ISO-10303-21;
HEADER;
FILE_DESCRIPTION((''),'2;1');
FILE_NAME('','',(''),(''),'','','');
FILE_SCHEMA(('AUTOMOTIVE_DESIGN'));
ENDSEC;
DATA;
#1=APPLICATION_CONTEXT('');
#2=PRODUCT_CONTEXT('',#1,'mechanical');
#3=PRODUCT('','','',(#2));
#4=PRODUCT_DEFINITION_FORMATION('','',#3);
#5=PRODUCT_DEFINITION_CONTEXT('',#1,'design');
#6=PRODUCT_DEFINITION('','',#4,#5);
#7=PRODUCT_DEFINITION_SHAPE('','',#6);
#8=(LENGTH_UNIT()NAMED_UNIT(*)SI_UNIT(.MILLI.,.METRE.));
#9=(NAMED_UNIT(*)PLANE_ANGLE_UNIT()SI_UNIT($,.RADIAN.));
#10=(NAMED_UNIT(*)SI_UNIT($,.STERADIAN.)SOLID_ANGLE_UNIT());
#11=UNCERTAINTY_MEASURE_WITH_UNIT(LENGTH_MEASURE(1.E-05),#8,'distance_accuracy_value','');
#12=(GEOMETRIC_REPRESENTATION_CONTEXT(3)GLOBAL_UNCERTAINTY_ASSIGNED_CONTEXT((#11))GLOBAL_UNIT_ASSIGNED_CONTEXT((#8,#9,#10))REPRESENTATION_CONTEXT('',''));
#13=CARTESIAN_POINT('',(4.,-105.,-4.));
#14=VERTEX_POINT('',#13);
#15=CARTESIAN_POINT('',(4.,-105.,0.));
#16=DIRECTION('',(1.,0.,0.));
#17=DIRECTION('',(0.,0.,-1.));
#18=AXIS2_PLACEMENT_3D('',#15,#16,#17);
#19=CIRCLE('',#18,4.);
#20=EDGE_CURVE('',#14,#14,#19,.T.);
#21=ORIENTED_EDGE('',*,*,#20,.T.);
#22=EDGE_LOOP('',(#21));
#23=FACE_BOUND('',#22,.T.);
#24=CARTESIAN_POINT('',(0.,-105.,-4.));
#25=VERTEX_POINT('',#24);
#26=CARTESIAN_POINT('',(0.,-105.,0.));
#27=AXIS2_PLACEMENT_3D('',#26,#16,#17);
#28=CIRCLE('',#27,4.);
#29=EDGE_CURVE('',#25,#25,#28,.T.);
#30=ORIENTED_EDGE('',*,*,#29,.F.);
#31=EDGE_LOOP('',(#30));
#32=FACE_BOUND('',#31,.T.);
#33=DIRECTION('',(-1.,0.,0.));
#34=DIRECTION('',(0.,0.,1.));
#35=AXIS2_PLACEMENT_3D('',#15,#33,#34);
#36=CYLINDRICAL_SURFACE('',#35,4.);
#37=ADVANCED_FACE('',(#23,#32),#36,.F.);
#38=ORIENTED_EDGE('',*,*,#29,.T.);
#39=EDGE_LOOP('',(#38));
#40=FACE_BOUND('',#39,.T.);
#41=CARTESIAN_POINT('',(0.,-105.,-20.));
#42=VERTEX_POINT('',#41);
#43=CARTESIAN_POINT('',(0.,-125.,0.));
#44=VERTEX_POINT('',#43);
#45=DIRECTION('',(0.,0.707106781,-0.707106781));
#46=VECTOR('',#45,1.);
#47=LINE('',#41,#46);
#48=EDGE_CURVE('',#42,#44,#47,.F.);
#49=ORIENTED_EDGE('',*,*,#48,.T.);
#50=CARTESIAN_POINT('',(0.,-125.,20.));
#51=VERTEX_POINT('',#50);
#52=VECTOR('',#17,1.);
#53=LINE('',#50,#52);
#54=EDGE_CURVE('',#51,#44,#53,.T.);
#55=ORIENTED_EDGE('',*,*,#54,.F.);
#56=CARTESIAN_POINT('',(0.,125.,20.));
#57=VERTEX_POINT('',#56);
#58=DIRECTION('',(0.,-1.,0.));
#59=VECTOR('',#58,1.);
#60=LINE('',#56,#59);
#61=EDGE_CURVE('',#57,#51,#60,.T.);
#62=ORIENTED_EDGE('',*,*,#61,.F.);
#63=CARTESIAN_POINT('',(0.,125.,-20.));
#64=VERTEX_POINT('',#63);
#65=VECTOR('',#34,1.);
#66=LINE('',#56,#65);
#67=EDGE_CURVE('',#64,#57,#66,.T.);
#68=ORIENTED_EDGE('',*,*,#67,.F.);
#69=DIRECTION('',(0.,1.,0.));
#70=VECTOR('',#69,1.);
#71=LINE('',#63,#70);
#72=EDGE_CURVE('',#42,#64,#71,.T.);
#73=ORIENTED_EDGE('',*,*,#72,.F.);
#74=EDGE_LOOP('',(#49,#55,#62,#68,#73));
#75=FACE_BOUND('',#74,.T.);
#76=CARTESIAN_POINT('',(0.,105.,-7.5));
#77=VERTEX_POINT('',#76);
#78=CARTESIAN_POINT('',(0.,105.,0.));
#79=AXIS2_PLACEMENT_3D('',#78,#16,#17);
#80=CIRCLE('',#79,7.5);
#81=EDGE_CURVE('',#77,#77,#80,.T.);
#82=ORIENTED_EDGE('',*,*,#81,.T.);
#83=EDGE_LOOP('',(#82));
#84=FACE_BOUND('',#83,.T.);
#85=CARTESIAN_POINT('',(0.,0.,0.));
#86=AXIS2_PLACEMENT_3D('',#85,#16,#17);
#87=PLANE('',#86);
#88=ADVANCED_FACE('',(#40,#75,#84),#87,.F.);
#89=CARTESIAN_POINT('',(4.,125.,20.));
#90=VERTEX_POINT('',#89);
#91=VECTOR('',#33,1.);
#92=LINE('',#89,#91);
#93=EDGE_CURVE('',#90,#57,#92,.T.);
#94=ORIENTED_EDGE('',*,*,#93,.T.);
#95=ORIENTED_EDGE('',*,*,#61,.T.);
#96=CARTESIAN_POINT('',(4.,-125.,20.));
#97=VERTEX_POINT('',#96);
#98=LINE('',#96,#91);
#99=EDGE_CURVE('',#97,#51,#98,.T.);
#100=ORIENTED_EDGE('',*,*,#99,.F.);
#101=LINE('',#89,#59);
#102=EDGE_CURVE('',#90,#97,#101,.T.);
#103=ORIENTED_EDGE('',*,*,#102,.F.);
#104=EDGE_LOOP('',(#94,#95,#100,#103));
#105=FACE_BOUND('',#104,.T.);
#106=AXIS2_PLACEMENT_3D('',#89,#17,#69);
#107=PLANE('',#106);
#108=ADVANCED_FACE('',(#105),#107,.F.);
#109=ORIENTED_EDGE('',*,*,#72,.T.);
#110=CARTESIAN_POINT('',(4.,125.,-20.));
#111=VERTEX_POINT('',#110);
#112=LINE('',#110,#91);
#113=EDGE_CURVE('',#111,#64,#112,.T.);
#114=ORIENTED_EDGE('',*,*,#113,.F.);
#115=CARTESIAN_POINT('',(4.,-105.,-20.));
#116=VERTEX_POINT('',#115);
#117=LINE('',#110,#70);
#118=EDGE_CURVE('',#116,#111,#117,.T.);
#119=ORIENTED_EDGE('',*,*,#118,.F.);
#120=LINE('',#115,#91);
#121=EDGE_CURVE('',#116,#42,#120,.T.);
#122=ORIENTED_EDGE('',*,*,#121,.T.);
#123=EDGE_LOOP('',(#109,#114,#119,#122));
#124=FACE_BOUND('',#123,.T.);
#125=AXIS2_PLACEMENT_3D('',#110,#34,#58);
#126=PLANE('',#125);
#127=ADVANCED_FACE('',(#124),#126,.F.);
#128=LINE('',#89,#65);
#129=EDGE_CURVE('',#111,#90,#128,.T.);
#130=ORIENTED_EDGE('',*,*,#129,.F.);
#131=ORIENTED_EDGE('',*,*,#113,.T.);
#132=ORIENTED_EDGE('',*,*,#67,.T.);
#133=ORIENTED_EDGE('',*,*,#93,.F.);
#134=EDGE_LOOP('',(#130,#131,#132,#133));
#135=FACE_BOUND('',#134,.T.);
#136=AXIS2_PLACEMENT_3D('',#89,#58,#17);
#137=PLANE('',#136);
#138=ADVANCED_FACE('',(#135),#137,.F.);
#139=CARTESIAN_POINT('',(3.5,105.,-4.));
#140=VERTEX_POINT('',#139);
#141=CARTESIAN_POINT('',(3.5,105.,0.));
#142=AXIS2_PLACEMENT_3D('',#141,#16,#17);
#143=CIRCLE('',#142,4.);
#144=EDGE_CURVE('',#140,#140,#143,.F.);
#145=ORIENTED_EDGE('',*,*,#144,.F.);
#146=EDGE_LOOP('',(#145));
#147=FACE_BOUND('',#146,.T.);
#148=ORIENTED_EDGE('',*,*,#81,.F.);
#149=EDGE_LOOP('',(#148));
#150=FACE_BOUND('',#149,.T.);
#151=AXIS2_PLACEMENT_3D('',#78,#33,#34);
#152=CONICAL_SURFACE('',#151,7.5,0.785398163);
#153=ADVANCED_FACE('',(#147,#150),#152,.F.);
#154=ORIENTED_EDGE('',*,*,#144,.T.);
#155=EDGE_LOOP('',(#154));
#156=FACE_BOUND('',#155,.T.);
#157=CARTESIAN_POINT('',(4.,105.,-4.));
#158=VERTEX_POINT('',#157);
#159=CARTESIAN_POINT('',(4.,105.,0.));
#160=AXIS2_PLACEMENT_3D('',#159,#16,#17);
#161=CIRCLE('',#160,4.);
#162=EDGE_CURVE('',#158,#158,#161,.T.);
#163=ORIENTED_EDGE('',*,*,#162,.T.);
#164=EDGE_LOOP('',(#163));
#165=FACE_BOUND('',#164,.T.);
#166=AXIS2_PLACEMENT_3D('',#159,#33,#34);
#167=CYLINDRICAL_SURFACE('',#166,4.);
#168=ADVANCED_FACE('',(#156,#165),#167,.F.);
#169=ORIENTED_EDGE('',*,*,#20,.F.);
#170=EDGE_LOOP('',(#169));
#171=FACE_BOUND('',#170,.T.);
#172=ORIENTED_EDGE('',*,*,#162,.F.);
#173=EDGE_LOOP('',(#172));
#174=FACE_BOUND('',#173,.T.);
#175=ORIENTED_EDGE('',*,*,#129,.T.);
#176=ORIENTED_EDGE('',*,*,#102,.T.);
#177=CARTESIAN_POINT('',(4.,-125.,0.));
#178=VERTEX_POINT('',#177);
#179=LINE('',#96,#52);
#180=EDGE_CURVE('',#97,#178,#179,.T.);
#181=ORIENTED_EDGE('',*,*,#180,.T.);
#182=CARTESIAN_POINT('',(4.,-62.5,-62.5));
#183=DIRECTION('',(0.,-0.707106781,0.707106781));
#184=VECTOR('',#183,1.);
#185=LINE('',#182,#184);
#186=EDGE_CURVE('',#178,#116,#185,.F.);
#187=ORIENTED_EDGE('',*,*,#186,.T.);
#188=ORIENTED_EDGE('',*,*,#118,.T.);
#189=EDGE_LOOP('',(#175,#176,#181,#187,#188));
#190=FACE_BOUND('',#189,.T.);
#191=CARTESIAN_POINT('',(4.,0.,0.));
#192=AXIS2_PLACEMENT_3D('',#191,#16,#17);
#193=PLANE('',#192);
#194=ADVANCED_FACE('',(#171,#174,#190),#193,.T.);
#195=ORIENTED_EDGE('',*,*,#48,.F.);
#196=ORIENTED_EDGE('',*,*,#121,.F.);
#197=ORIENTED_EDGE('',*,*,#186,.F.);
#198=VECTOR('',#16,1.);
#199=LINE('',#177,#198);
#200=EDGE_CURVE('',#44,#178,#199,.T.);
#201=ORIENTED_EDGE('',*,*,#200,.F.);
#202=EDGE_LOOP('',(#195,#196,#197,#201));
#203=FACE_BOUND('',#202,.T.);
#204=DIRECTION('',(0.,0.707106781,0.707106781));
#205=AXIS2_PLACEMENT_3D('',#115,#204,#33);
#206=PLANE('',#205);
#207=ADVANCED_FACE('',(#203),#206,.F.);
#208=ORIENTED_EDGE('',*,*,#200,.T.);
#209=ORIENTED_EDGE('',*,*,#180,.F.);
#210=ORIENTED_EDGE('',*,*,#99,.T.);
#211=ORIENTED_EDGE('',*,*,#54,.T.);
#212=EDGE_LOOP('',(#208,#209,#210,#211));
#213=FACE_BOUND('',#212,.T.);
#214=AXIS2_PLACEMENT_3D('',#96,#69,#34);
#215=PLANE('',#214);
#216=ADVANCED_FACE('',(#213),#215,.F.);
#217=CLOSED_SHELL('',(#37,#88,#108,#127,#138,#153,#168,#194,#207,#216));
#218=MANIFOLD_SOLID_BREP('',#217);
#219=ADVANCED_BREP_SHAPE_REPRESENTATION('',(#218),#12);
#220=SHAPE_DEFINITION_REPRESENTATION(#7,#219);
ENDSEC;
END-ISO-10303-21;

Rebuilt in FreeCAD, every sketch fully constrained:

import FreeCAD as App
import Part
import Sketcher
from FreeCAD import Vector
Q = App.Units.Quantity


def edges_at(feature, points):
    """Names of the edges that pass closest to the given points."""
    edges = feature.Shape.Edges
    near = lambda p: min(range(len(edges)), key=lambda i: edges[i].distToShape(Part.Vertex(*p))[0])
    return sorted({f"Edge{near(p) + 1}" for p in points})


def add_polygon(sketch, points):
    """Adds a closed chain of lines whose ends are joined by coincident constraints."""
    first, n = sketch.GeometryCount, len(points)
    for a, b in zip(points, points[1:] + points[:1]):
        sketch.addGeometry(Part.LineSegment(App.Vector(*a, 0), App.Vector(*b, 0)), False)
    for i in range(n):
        sketch.addConstraint(Sketcher.Constraint("Coincident", first + i, 2, first + (i + 1) % n, 1))

doc = App.newDocument("Part")
body = doc.addObject("PartDesign::Body", "Body")

sketch1 = doc.addObject("Sketcher::SketchObject", "Sketch")
body.addObject(sketch1)
sketch1.AttachmentSupport = (doc.YZ_Plane, [""])
sketch1.MapMode = "FlatFace"
add_polygon(sketch1, [(125, 20), (-125, 20), (-125, -20), (125, -20)])
sketch1.addGeometry(Part.Circle(Vector(-105, 0, 0), Vector(0, 0, 1), 4), False)
sketch1.addGeometry(Part.Circle(Vector(105, 0, 0), Vector(0, 0, 1), 4), False)
sketch1.addConstraint(Sketcher.Constraint("Horizontal", 0))
sketch1.addConstraint(Sketcher.Constraint("Vertical", 1))
sketch1.addConstraint(Sketcher.Constraint("Horizontal", 2))
sketch1.addConstraint(Sketcher.Constraint("Vertical", 3))
sketch1.addConstraint(Sketcher.Constraint("Equal", 4, 5))
sketch1.addConstraint(Sketcher.Constraint("Symmetric", 4, 3, 5, 3, -1, 1))
sketch1.addConstraint(Sketcher.Constraint("Symmetric", 0, 2, 2, 2, -1, 1))
sketch1.addConstraint(Sketcher.Constraint("PointOnObject", 4, 3, -1))
sketch1.addConstraint(Sketcher.Constraint("Diameter", 4, Q("8 mm")))
sketch1.addConstraint(Sketcher.Constraint("DistanceX", 0, 2, 0, 1, Q("250 mm")))
sketch1.addConstraint(Sketcher.Constraint("DistanceY", 1, 2, 1, 1, Q("40 mm")))
sketch1.addConstraint(Sketcher.Constraint("DistanceX", 4, 3, -1, 1, Q("105 mm")))
pad1 = doc.addObject("PartDesign::Pad", "Pad")
body.addObject(pad1)
pad1.Profile = sketch1
pad1.Length = 4
doc.recompute()

chamfer = doc.addObject("PartDesign::Chamfer", "Chamfer")
body.addObject(chamfer)
chamfer.Base = (pad1, edges_at(pad1, [(0, 105, 4)]))
chamfer.Size = 3.5
doc.recompute()

chamfer2 = doc.addObject("PartDesign::Chamfer", "Chamfer001")
body.addObject(chamfer2)
chamfer2.Base = (chamfer, edges_at(chamfer, [(2, -125, -20)]))
chamfer2.Size = 20

doc.recompute()
